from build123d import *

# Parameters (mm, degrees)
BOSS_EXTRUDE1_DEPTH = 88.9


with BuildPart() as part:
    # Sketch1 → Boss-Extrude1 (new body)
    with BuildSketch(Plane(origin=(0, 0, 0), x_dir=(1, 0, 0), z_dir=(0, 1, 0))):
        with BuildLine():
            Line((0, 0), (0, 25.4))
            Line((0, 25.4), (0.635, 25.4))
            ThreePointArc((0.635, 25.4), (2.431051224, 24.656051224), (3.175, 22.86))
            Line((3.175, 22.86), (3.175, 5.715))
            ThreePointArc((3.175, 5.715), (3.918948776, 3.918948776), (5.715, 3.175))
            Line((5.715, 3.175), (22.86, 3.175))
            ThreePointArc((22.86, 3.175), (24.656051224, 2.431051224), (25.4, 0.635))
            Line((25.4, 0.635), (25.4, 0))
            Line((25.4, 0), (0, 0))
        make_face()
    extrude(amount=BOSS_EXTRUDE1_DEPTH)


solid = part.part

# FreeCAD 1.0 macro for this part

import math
import FreeCAD as App
import Part
import Sketcher
Q = App.Units.Quantity

doc = App.newDocument("Part")
body = doc.addObject("PartDesign::Body", "Body")

sketch1 = body.newObject("Sketcher::SketchObject", "Sketch")
sketch1.AttachmentSupport = (doc.getObject("XZ_Plane"), [""])
sketch1.MapMode = "FlatFace"
sketch1.addGeometry(Part.LineSegment(App.Vector(0, -25.4, 0), App.Vector(0, 0, 0)), False)
sketch1.addGeometry(Part.LineSegment(App.Vector(0, 0, 0), App.Vector(25.4, 0, 0)), False)
sketch1.addGeometry(Part.LineSegment(App.Vector(25.4, 0, 0), App.Vector(25.4, -0.635, 0)), False)
sketch1.addGeometry(Part.ArcOfCircle(Part.Circle(App.Vector(22.86, -0.635, 0), App.Vector(0, 0, 1), 2.54), math.radians(-90), math.radians(0)), False)
sketch1.addGeometry(Part.LineSegment(App.Vector(22.86, -3.175, 0), App.Vector(5.715, -3.175, 0)), False)
sketch1.addGeometry(Part.ArcOfCircle(Part.Circle(App.Vector(5.715, -5.715, 0), App.Vector(0, 0, 1), 2.54), math.radians(90), math.radians(180)), False)
sketch1.addGeometry(Part.LineSegment(App.Vector(3.175, -5.715, 0), App.Vector(3.175, -22.86, 0)), False)
sketch1.addGeometry(Part.ArcOfCircle(Part.Circle(App.Vector(0.635, -22.86, 0), App.Vector(0, 0, 1), 2.54), math.radians(-90), math.radians(0)), False)
sketch1.addGeometry(Part.LineSegment(App.Vector(0.635, -25.4, 0), App.Vector(0, -25.4, 0)), False)
sketch1.addConstraint(Sketcher.Constraint("Coincident", 0, 2, 1, 1))
sketch1.addConstraint(Sketcher.Constraint("Coincident", 1, 2, 2, 1))
sketch1.addConstraint(Sketcher.Constraint("Tangent", 2, 2, 3, 2))
sketch1.addConstraint(Sketcher.Constraint("Tangent", 3, 1, 4, 1))
sketch1.addConstraint(Sketcher.Constraint("Tangent", 4, 2, 5, 1))
sketch1.addConstraint(Sketcher.Constraint("Tangent", 5, 2, 6, 1))
sketch1.addConstraint(Sketcher.Constraint("Tangent", 6, 2, 7, 2))
sketch1.addConstraint(Sketcher.Constraint("Tangent", 7, 1, 8, 1))
sketch1.addConstraint(Sketcher.Constraint("Coincident", 8, 2, 0, 1))
sketch1.addConstraint(Sketcher.Constraint("Vertical", 0))
sketch1.addConstraint(Sketcher.Constraint("Horizontal", 1))
sketch1.addConstraint(Sketcher.Constraint("Vertical", 2))
sketch1.addConstraint(Sketcher.Constraint("Horizontal", 4))
sketch1.addConstraint(Sketcher.Constraint("Vertical", 6))
sketch1.addConstraint(Sketcher.Constraint("Horizontal", 8))
sketch1.addConstraint(Sketcher.Constraint("Coincident", 0, 2, -1, 1))
sketch1.addConstraint(Sketcher.Constraint("Equal", 3, 5))
sketch1.addConstraint(Sketcher.Constraint("Equal", 5, 7))
sketch1.addConstraint(Sketcher.Constraint("Equal", 1, 0))
sketch1.addConstraint(Sketcher.Constraint("Equal", 8, 2))
sketch1.addConstraint(Sketcher.Constraint("Radius", 3, Q("0.1 in")))
sketch1.addConstraint(Sketcher.Constraint("DistanceX", 1, 1, 1, 2, Q("1 in")))
sketch1.addConstraint(Sketcher.Constraint("DistanceX", 4, 2, 4, 1, Q("0.675 in")))
pad1 = body.newObject("PartDesign::Pad", "Pad")
pad1.Profile = sketch1
pad1.Length = Q("3.5 in")
pad1.Reversed = True

doc.recompute()
